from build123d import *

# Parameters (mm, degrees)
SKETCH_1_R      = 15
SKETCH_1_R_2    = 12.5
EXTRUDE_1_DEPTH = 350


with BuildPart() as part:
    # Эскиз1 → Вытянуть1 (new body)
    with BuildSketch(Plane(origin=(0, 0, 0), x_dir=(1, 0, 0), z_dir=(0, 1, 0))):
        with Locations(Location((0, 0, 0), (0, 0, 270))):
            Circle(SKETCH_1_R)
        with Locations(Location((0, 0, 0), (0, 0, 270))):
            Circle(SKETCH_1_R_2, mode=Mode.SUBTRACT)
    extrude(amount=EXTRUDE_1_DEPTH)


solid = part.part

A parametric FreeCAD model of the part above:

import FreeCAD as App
import Part
import Sketcher
Q = App.Units.Quantity

doc = App.newDocument("Part")
body = doc.addObject("PartDesign::Body", "Body")

sketch1 = body.newObject("Sketcher::SketchObject", "Sketch")
sketch1.AttachmentSupport = (doc.getObject("XZ_Plane"), [""])
sketch1.MapMode = "FlatFace"
sketch1.addGeometry(Part.Circle(App.Vector(0, 0, 0), App.Vector(0, 0, 1), 15), False)
sketch1.addGeometry(Part.Circle(App.Vector(0, 0, 0), App.Vector(0, 0, 1), 12.5), False)
sketch1.addConstraint(Sketcher.Constraint("Coincident", 0, 3, -1, 1))
sketch1.addConstraint(Sketcher.Constraint("Coincident", 1, 3, -1, 1))
sketch1.addConstraint(Sketcher.Constraint("Diameter", 0, Q("30 mm")))
sketch1.addConstraint(Sketcher.Constraint("Diameter", 1, Q("25 mm")))
pad1 = body.newObject("PartDesign::Pad", "Pad")
pad1.Profile = sketch1
pad1.Length = 350
pad1.Reversed = True

doc.recompute()
